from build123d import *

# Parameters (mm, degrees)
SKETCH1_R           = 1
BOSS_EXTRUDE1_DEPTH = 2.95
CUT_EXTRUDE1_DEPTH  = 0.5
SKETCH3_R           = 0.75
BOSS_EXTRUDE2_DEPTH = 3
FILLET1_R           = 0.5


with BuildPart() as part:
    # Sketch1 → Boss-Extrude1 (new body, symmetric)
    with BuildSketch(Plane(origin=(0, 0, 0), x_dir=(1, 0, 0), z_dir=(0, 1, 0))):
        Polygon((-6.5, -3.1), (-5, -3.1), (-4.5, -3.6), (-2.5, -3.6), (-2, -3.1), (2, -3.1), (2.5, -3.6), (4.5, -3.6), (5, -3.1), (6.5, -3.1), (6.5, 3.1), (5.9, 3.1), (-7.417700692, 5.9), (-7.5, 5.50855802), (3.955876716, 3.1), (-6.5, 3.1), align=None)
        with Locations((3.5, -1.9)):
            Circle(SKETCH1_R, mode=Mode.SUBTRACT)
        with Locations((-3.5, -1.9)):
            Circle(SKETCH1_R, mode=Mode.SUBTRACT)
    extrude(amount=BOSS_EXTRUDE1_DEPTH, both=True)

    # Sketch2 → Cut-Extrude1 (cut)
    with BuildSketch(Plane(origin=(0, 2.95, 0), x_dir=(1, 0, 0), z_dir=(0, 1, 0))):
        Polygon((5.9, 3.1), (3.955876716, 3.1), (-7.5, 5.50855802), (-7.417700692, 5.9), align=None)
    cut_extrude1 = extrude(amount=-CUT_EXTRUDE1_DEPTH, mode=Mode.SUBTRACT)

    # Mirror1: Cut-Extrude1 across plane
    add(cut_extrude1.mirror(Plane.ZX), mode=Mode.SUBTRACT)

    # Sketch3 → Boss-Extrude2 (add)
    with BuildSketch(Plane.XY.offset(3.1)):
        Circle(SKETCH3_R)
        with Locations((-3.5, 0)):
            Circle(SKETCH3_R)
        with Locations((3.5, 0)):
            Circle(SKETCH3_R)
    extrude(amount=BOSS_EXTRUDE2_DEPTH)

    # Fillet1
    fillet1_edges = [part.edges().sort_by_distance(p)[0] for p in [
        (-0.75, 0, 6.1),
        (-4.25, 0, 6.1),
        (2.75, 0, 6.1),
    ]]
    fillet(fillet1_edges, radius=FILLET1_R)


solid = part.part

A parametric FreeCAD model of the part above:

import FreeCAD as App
import Part
import Sketcher
from FreeCAD import Vector
Q = App.Units.Quantity


def edges_at(feature, points):
    """Names of the edges that pass closest to the given points."""
    edges = feature.Shape.Edges
    near = lambda p: min(range(len(edges)), key=lambda i: edges[i].distToShape(Part.Vertex(*p))[0])
    return sorted({f"Edge{near(p) + 1}" for p in points})


def add_polygon(sketch, points):
    """Adds a closed chain of lines whose ends are joined by coincident constraints."""
    first, n = sketch.GeometryCount, len(points)
    for a, b in zip(points, points[1:] + points[:1]):
        sketch.addGeometry(Part.LineSegment(App.Vector(*a, 0), App.Vector(*b, 0)), False)
    for i in range(n):
        sketch.addConstraint(Sketcher.Constraint("Coincident", first + i, 2, first + (i + 1) % n, 1))

doc = App.newDocument("Part")
body = doc.addObject("PartDesign::Body", "Body")

# Sketch on XZ plane
sketch1 = doc.addObject("Sketcher::SketchObject", "Sketch")
body.addObject(sketch1)
sketch1.AttachmentSupport = (doc.XZ_Plane, [""])
sketch1.MapMode = "FlatFace"
add_polygon(sketch1, [(-6.5, 3.1), (-5, 3.1), (-4.5, 3.6), (-2.5, 3.6), (-2, 3.1), (2, 3.1), (2.5, 3.6), (4.5, 3.6), (5, 3.1), (6.5, 3.1), (6.5, -3.1), (5.9, -3.1), (-7.417701, -5.9), (-7.5, -5.508558), (3.955877, -3.1), (-6.5, -3.1)])  # lines 0-15
sketch1.addGeometry(Part.Circle(Vector(-3.5, 1.9, 0), Vector(0, 0, 1), 1), False)  # 16
sketch1.addGeometry(Part.Circle(Vector(3.5, 1.9, 0), Vector(0, 0, 1), 1), False)  # 17
sketch1.addConstraint([
    Sketcher.Constraint("Horizontal", 0),
    Sketcher.Constraint("Horizontal", 2),
    Sketcher.Constraint("Horizontal", 4),
    Sketcher.Constraint("Horizontal", 6),
    Sketcher.Constraint("Horizontal", 8),
    Sketcher.Constraint("Vertical", 9),
    Sketcher.Constraint("Horizontal", 10),
    Sketcher.Constraint("Horizontal", 14),
    Sketcher.Constraint("Vertical", 15),
    Sketcher.Constraint("Equal", 16, 17),
    Sketcher.Constraint("Symmetric", 8, 2, 14, 2, -1, 1),
    Sketcher.Constraint("Symmetric", 16, 3, 17, 3, -2),
    Sketcher.Constraint("Symmetric", 2, 2, 5, 2, -2),
    Sketcher.Constraint("Symmetric", 0, 2, 7, 2, -2),
    Sketcher.Constraint("Perpendicular", 1, 3),
    Sketcher.Constraint("Perpendicular", 3, 5),
    Sketcher.Constraint("Perpendicular", 5, 7),
    Sketcher.Constraint("Perpendicular", 11, 12),
    Sketcher.Constraint("Perpendicular", 12, 13),
    Sketcher.Constraint("Horizontal", 0, 2, 3, 2),
    Sketcher.Constraint("Horizontal", 10, 2, 13, 2),
    Sketcher.Constraint("Equal", 2, 6),
    Sketcher.Constraint("Diameter", 16, Q("2 mm")),
    Sketcher.Constraint("DistanceX", 2, 1, 2, 2, Q("2 mm")),
    Sketcher.Constraint("DistanceX", 4, 1, 4, 2, Q("4 mm")),
    Sketcher.Constraint("DistanceX", 0, 1, 0, 2, Q("1.5 mm")),
    Sketcher.Constraint("DistanceX", 10, 2, 10, 1, Q("0.6 mm")),
    Sketcher.Constraint("DistanceY", 9, 2, 9, 1, Q("6.2 mm")),
    Sketcher.Constraint("DistanceX", 0, 2, -1, 1, Q("5 mm")),
    Sketcher.Constraint("DistanceX", 16, 3, 17, 3, Q("7 mm")),
    Sketcher.Constraint("DistanceY", 9, 2, 17, 3, Q("5 mm")),
    Sketcher.Constraint("DistanceY", 11, 2, 0, 2, Q("9 mm")),
    Sketcher.Constraint("DistanceX", 12, 2, 16, 3, Q("4 mm")),
    Sketcher.Constraint("Distance", 12, Q("0.4 mm")),
])
pad1 = doc.addObject("PartDesign::Pad", "Pad")
body.addObject(pad1)
pad1.Profile = sketch1
pad1.Length = 5.9
pad1.Midplane = True

# Sketch on XZ plane
sketch2 = doc.addObject("Sketcher::SketchObject", "Sketch001")
body.addObject(sketch2)
sketch2.AttachmentSupport = (doc.XZ_Plane, [""])
sketch2.MapMode = "FlatFace"
sketch2.AttachmentOffset = App.Placement(Vector(0, 0, -2.95), App.Rotation())
add_polygon(sketch2, [(3.955877, -3.1), (5.9, -3.1), (-7.417701, -5.9), (-7.5, -5.508558)])  # lines 0-3
sketch2.addConstraint([
    Sketcher.Constraint("Horizontal", 0),
    Sketcher.Constraint("Perpendicular", 1, 2),
    Sketcher.Constraint("Perpendicular", 2, 3),
    Sketcher.Constraint("Distance", 2, Q("0.4 mm")),
    Sketcher.Constraint("DistanceX", -1, 1, 0, 2, Q("5.9 mm")),
    Sketcher.Constraint("DistanceY", 0, 2, -1, 1, Q("3.1 mm")),
    Sketcher.Constraint("DistanceY", 1, 2, -1, 1, Q("5.9 mm")),
    Sketcher.Constraint("DistanceX", 2, 2, -1, 1, Q("7.5 mm")),
])
pocket1 = doc.addObject("PartDesign::Pocket", "Pocket")
body.addObject(pocket1)
pocket1.Profile = sketch2
pocket1.Length = 0.5
pocket1.Reversed = True
doc.recompute()

mirrored = doc.addObject("PartDesign::Mirrored", "Mirrored")
body.addObject(mirrored)
mirrored.Originals = [pocket1]
mirrored.MirrorPlane = (doc.XZ_Plane, [""])
body.Tip = mirrored

# Sketch on XY plane
sketch3 = doc.addObject("Sketcher::SketchObject", "Sketch002")
body.addObject(sketch3)
sketch3.AttachmentSupport = (doc.XY_Plane, [""])
sketch3.MapMode = "FlatFace"
sketch3.AttachmentOffset = App.Placement(Vector(0, 0, 3.1), App.Rotation())
sketch3.addGeometry([
    Part.Circle(Vector(0, 0, 0), Vector(0, 0, 1), 0.75),
    Part.Circle(Vector(-3.5, 0, 0), Vector(0, 0, 1), 0.75),
    Part.Circle(Vector(3.5, 0, 0), Vector(0, 0, 1), 0.75),
], False)
sketch3.addConstraint([
    Sketcher.Constraint("Coincident", 0, 3, -1, 1),
    Sketcher.Constraint("Equal", 0, 1),
    Sketcher.Constraint("Equal", 1, 2),
    Sketcher.Constraint("Symmetric", 1, 3, 2, 3, -1, 1),
    Sketcher.Constraint("PointOnObject", 1, 3, -1),
    Sketcher.Constraint("Diameter", 0, Q("1.5 mm")),
    Sketcher.Constraint("DistanceX", 1, 3, 2, 3, Q("7 mm")),
])
pad2 = doc.addObject("PartDesign::Pad", "Pad001")
body.addObject(pad2)
pad2.Profile = sketch3
pad2.Length = 3
doc.recompute()

fillet = doc.addObject("PartDesign::Fillet", "Fillet")
body.addObject(fillet)
fillet.Base = (pad2, edges_at(pad2, [(-0.75, 0, 6.1), (-4.25, 0, 6.1), (2.75, 0, 6.1)]))
fillet.Radius = 0.5

doc.recompute()
